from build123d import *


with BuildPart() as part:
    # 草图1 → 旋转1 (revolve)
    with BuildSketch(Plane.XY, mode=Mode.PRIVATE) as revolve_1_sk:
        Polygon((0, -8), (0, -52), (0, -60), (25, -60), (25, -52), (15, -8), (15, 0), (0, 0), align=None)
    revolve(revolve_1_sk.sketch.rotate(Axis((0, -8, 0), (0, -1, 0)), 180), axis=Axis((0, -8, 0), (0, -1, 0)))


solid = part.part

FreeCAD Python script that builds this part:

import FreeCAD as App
import Part
import Sketcher
from FreeCAD import Vector
Q = App.Units.Quantity


def add_polygon(sketch, points):
    """Adds a closed chain of lines whose ends are joined by coincident constraints."""
    first, n = sketch.GeometryCount, len(points)
    for a, b in zip(points, points[1:] + points[:1]):
        sketch.addGeometry(Part.LineSegment(App.Vector(*a, 0), App.Vector(*b, 0)), False)
    for i in range(n):
        sketch.addConstraint(Sketcher.Constraint("Coincident", first + i, 2, first + (i + 1) % n, 1))

doc = App.newDocument("Part")
body = doc.addObject("PartDesign::Body", "Body")

# Sketch on XY plane
sketch1 = doc.addObject("Sketcher::SketchObject", "Sketch")
body.addObject(sketch1)
sketch1.AttachmentSupport = (doc.XY_Plane, [""])
sketch1.MapMode = "FlatFace"
add_polygon(sketch1, [(0, -60), (25, -60), (25, -52), (15, -8), (15, 0), (0, 0)])  # lines 0-5
sketch1.addConstraint([
    Sketcher.Constraint("Horizontal", 0),
    Sketcher.Constraint("Vertical", 1),
    Sketcher.Constraint("Vertical", 3),
    Sketcher.Constraint("Horizontal", 4),
    Sketcher.Constraint("Vertical", 5),
    Sketcher.Constraint("Coincident", 4, 2, -1, 1),
    Sketcher.Constraint("Equal", 1, 3),
    Sketcher.Constraint("DistanceX", 0, 1, 0, 2, Q("25 mm")),
    Sketcher.Constraint("DistanceX", 4, 2, 4, 1, Q("15 mm")),
    Sketcher.Constraint("DistanceY", 1, 1, 1, 2, Q("8 mm")),
    Sketcher.Constraint("DistanceY", 5, 2, 5, 1, Q("60 mm")),
])
revolution = doc.addObject("PartDesign::Revolution", "Revolution")
body.addObject(revolution)
revolution.Profile = sketch1
revolution.ReferenceAxis = (sketch1, ["V_Axis"])
revolution.Angle = 360

doc.recompute()
